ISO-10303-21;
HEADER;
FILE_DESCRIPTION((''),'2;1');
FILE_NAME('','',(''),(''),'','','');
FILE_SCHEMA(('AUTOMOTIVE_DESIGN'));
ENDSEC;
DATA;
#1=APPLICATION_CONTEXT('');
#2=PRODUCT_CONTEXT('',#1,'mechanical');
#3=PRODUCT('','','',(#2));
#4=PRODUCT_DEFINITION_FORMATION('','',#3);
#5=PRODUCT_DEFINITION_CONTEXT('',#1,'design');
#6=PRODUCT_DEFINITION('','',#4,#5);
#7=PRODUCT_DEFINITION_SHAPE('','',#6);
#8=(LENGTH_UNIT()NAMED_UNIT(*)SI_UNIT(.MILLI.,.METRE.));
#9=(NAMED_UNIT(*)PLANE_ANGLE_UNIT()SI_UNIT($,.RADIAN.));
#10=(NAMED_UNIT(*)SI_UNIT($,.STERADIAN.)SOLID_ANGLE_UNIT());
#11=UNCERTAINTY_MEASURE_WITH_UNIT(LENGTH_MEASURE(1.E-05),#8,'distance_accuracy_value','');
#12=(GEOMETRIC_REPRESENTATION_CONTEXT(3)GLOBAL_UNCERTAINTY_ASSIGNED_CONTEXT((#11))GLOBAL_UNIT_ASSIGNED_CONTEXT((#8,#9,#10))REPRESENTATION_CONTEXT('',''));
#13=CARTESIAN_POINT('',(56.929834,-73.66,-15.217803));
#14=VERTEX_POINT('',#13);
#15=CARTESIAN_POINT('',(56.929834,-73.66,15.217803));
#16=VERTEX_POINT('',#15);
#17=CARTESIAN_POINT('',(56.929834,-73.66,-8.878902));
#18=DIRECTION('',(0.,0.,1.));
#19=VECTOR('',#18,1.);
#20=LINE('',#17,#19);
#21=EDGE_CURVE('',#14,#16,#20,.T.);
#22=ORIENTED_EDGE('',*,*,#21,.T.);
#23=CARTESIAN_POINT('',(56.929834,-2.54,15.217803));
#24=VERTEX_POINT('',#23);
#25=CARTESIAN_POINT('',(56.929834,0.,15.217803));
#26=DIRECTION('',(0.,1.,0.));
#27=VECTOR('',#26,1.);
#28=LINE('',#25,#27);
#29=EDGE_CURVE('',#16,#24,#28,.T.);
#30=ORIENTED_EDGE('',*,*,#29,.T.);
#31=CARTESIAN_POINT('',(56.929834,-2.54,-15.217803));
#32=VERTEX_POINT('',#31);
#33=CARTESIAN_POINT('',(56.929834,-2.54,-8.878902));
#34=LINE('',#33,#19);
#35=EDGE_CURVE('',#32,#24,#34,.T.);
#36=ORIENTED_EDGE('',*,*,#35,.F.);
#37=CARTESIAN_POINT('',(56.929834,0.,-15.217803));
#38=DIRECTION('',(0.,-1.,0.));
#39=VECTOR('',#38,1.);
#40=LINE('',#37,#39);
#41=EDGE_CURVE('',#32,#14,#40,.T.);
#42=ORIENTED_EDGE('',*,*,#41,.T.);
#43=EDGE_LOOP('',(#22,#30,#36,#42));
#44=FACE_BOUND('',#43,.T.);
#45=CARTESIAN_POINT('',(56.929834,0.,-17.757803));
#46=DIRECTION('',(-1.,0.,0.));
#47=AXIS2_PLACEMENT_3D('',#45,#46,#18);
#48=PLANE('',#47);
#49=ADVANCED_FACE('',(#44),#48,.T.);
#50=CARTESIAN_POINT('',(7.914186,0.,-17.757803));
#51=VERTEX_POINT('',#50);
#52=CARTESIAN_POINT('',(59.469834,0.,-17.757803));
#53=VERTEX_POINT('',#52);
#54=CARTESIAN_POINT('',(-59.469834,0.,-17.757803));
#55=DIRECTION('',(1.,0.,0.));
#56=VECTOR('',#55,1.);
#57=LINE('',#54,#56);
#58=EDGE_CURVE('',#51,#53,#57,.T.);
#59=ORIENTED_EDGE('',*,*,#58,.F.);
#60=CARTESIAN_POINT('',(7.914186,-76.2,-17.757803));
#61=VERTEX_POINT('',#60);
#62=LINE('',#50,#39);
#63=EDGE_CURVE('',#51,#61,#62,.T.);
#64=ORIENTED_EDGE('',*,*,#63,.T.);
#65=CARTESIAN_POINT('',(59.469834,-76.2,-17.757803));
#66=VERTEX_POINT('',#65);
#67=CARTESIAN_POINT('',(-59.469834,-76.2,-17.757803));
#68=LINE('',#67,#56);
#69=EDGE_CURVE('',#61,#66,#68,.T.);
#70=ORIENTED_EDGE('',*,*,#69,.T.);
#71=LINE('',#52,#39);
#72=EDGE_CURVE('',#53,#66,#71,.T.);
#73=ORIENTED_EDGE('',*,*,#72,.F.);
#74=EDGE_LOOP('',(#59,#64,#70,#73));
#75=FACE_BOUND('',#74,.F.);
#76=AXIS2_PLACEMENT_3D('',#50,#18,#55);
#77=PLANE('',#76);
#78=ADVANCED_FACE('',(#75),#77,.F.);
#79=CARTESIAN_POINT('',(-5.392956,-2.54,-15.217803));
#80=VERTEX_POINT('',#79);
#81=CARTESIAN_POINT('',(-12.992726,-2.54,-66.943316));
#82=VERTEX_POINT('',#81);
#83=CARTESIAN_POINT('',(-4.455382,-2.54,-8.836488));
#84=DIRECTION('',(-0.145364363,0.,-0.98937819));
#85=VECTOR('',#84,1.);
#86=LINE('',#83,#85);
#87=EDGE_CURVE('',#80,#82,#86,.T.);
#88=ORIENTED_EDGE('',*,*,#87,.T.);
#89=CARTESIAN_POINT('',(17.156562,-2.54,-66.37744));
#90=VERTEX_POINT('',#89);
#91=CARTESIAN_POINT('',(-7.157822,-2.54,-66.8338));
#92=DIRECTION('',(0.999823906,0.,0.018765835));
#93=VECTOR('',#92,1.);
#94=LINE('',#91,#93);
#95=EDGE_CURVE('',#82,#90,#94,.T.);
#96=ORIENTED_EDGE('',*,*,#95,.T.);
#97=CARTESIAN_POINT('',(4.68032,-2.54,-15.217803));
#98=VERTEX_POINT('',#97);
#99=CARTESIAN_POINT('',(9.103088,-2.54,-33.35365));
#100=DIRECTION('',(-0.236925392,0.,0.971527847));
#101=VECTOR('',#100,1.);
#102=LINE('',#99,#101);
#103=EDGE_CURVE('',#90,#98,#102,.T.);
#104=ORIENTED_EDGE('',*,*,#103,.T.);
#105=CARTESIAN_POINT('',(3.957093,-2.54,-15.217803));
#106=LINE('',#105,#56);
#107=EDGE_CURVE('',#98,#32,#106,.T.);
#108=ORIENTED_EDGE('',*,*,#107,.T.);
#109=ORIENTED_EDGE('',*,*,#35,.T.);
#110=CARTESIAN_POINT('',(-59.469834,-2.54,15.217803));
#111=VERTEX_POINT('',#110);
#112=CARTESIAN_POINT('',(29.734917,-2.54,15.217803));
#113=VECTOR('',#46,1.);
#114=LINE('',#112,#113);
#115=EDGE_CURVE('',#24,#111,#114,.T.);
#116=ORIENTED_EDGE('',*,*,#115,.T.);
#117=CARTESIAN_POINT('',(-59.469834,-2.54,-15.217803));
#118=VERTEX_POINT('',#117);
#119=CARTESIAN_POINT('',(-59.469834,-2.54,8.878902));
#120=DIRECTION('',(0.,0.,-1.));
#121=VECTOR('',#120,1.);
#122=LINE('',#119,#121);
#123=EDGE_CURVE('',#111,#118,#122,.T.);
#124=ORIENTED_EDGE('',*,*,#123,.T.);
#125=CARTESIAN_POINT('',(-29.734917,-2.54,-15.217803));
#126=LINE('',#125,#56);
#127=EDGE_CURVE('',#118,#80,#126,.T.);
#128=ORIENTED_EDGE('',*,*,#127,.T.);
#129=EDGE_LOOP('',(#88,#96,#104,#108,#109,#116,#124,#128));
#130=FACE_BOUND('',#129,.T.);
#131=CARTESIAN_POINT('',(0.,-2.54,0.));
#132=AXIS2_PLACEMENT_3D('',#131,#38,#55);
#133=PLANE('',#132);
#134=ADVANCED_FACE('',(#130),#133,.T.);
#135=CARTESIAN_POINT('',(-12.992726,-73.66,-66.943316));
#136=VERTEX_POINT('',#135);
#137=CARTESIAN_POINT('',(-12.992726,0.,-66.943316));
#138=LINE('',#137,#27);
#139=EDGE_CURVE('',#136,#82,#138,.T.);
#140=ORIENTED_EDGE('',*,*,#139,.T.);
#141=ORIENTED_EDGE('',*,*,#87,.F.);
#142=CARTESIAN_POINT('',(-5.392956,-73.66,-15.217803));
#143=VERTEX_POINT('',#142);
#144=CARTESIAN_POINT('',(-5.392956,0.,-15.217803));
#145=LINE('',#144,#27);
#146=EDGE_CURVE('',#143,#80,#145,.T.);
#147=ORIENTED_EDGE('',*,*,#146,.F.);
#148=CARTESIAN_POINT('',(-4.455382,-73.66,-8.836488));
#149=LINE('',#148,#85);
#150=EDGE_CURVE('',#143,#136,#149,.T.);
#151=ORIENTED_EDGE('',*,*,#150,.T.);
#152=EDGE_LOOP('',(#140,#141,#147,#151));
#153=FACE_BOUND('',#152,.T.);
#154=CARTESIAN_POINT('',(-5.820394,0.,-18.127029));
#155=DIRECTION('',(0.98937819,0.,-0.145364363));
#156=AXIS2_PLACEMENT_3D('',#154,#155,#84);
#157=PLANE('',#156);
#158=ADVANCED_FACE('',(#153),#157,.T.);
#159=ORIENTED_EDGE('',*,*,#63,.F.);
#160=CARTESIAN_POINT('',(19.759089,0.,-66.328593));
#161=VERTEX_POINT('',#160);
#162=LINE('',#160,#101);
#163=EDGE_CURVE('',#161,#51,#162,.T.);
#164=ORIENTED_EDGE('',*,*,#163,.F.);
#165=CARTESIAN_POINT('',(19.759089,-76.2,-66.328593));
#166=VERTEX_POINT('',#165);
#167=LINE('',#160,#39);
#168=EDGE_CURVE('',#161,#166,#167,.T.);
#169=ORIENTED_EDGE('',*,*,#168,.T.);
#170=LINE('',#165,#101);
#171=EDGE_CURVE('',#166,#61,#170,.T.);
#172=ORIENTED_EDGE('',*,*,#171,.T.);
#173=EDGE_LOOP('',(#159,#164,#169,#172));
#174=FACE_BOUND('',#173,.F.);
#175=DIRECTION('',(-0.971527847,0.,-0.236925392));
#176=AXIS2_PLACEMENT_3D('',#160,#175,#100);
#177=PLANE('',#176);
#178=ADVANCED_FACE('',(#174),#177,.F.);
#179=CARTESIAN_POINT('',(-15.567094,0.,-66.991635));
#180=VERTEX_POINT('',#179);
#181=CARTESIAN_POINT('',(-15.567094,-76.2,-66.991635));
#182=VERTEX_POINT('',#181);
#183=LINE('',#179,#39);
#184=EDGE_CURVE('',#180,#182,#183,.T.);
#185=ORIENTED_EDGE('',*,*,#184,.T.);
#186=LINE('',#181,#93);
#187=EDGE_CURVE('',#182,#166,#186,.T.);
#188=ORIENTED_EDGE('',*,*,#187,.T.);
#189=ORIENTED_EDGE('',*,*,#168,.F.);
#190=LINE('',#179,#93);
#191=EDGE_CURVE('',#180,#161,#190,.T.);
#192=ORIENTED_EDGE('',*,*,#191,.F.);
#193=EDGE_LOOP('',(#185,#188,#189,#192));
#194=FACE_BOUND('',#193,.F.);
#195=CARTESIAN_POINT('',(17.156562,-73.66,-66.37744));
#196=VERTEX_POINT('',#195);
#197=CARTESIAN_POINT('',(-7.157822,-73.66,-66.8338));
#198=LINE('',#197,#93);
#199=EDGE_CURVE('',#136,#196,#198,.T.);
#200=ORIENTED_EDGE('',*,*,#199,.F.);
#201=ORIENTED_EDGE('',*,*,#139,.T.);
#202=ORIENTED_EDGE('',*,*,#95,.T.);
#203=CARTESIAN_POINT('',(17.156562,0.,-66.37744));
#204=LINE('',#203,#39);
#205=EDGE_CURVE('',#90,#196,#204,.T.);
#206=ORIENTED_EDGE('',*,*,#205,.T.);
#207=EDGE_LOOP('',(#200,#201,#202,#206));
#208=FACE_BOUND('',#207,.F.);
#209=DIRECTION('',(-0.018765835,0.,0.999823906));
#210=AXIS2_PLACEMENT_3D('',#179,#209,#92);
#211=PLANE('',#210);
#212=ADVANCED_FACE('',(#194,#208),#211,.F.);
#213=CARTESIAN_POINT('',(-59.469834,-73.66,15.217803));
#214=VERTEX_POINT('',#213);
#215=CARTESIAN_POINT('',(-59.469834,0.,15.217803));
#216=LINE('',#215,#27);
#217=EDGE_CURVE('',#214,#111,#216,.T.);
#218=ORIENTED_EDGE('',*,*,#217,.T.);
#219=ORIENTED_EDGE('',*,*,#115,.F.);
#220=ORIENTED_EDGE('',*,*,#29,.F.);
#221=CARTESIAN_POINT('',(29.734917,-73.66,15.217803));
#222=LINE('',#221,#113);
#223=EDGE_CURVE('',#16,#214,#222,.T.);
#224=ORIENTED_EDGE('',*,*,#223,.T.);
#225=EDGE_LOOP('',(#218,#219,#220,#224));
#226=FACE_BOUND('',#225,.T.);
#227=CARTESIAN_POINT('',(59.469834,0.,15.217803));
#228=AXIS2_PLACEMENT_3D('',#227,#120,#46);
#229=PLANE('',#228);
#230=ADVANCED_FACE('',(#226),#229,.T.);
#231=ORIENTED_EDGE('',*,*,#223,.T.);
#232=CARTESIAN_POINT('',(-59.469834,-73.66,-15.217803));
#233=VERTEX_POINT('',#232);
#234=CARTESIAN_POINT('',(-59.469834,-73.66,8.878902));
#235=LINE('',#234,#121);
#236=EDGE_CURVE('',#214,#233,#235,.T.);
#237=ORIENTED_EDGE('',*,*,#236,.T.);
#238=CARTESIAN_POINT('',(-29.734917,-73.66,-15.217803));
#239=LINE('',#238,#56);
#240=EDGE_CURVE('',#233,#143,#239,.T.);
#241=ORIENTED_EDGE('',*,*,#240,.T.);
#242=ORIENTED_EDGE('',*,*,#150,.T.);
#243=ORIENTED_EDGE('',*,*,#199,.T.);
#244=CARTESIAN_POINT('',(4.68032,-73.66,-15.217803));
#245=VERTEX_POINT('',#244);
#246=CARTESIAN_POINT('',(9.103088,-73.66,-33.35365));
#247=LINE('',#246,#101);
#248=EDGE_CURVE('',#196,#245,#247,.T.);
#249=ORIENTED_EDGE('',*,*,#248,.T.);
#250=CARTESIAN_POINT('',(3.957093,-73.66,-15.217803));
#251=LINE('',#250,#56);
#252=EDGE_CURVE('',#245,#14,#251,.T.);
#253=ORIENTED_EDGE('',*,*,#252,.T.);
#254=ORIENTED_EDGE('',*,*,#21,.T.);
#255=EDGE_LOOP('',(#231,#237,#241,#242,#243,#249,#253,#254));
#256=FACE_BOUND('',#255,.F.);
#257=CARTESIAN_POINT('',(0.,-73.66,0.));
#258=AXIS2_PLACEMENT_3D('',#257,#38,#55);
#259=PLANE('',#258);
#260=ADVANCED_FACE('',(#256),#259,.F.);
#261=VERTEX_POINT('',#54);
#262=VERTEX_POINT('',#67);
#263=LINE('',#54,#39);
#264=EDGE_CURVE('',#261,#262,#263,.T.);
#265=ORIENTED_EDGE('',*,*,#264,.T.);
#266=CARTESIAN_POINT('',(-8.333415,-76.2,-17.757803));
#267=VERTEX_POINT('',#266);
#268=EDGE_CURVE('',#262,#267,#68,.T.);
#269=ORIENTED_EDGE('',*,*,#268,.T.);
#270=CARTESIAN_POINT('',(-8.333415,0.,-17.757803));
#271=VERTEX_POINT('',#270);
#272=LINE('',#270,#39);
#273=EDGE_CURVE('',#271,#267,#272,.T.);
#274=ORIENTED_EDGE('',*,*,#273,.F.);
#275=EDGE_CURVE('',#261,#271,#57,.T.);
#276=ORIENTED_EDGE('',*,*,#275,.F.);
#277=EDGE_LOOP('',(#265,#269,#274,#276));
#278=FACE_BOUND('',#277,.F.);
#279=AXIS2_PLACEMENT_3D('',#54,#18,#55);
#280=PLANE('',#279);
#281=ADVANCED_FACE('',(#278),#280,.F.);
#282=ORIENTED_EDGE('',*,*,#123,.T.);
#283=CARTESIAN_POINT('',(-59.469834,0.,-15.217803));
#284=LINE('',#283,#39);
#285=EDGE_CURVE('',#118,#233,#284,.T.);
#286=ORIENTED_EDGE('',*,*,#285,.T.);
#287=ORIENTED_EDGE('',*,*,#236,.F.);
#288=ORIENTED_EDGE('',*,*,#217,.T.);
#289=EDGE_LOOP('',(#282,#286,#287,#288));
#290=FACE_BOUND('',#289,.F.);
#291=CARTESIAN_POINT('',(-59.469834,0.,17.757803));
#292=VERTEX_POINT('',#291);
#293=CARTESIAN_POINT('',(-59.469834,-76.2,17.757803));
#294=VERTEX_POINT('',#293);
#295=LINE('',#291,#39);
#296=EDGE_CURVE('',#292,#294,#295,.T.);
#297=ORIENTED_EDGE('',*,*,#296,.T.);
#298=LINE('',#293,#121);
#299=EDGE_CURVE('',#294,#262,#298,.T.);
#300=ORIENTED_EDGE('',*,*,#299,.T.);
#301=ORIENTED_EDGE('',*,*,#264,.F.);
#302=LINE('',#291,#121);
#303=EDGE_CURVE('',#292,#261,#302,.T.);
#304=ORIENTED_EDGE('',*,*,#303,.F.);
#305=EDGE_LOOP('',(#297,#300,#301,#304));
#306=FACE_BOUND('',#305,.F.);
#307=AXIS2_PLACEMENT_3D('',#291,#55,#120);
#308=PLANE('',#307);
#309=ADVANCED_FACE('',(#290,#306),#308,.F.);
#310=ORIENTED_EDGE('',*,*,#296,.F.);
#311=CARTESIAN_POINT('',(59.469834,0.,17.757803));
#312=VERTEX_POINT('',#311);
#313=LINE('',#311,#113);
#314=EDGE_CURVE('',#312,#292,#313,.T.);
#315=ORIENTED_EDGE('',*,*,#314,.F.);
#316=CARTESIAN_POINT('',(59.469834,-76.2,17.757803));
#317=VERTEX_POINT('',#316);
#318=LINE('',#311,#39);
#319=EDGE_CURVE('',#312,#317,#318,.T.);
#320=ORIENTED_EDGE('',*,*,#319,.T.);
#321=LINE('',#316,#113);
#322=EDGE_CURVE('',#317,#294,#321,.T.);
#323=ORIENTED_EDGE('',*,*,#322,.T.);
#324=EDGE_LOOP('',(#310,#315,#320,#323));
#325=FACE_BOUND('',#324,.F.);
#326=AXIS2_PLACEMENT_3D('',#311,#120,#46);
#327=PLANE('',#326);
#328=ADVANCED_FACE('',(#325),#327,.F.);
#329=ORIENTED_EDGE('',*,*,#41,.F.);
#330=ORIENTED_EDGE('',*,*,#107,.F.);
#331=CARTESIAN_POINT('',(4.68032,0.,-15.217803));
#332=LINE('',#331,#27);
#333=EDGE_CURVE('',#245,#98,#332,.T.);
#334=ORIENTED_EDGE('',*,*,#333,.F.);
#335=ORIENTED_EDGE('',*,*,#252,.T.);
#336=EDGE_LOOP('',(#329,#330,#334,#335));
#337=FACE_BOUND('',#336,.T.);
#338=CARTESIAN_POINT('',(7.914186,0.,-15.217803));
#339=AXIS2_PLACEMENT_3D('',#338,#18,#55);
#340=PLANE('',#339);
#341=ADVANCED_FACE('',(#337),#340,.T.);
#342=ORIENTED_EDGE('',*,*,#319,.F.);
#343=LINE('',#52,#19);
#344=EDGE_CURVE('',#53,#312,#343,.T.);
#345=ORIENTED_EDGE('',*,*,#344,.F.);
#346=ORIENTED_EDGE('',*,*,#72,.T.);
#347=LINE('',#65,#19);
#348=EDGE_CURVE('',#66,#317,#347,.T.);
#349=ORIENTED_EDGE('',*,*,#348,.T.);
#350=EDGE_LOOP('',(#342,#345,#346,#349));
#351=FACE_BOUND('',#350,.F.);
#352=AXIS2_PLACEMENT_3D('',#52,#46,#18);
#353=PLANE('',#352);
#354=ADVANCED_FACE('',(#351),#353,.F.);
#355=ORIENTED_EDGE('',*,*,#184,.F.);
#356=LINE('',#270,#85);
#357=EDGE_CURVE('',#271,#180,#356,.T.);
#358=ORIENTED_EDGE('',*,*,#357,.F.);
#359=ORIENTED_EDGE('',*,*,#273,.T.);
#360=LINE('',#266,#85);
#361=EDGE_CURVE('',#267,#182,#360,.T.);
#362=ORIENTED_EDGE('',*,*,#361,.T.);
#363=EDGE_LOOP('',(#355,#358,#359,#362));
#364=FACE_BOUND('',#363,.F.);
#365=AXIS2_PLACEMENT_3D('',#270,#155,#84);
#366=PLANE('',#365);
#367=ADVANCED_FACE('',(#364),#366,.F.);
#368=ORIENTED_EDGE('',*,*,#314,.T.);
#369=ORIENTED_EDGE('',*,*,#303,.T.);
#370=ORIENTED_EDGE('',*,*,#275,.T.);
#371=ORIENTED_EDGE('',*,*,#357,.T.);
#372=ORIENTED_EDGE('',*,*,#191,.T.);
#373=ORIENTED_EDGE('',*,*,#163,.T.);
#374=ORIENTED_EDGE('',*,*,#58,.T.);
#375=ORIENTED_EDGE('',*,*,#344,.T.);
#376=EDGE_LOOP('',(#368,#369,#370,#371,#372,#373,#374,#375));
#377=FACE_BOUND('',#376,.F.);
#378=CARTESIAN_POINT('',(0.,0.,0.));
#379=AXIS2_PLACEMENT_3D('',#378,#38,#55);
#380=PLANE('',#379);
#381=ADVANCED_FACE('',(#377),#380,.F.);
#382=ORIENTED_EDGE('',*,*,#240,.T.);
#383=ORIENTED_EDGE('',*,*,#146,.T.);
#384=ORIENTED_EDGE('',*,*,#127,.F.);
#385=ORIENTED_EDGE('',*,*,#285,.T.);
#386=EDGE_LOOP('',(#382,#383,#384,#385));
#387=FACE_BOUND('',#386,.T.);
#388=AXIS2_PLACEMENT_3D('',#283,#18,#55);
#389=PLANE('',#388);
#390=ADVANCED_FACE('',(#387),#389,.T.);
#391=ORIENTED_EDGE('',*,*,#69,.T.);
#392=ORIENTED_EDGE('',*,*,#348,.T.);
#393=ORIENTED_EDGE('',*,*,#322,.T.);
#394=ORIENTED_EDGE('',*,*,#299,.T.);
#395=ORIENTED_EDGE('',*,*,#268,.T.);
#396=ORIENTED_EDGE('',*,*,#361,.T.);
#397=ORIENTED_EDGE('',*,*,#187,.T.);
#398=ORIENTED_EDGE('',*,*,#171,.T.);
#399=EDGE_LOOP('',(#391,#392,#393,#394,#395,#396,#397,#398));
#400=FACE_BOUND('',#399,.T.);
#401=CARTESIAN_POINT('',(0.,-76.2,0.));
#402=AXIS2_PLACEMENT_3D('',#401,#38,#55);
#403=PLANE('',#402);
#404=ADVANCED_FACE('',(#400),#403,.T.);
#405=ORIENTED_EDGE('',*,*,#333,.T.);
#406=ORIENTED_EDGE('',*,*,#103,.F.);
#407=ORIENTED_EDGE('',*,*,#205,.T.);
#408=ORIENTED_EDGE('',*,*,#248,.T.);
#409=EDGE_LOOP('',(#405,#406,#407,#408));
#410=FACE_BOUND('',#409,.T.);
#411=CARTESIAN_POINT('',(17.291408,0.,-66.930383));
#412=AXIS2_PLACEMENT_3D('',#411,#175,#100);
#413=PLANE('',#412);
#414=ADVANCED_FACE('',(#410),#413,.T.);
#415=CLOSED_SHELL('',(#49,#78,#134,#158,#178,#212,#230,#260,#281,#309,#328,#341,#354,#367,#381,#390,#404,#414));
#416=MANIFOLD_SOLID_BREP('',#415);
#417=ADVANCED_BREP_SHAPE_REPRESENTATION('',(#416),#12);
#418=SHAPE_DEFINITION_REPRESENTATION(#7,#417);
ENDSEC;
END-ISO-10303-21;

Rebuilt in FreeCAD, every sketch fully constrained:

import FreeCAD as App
import Part
import Sketcher
from FreeCAD import Vector
Q = App.Units.Quantity


def faces_at(feature, points):
    """Names of the faces that lie closest to the given points."""
    faces = feature.Shape.Faces
    near = lambda p: min(range(len(faces)), key=lambda i: faces[i].distToShape(Part.Vertex(*p))[0])
    return sorted({f"Face{near(p) + 1}" for p in points})


def add_polygon(sketch, points):
    """Adds a closed chain of lines whose ends are joined by coincident constraints."""
    first, n = sketch.GeometryCount, len(points)
    for a, b in zip(points, points[1:] + points[:1]):
        sketch.addGeometry(Part.LineSegment(App.Vector(*a, 0), App.Vector(*b, 0)), False)
    for i in range(n):
        sketch.addConstraint(Sketcher.Constraint("Coincident", first + i, 2, first + (i + 1) % n, 1))

doc = App.newDocument("Part")
body = doc.addObject("PartDesign::Body", "Body")

sketch1 = doc.addObject("Sketcher::SketchObject", "Sketch")
body.addObject(sketch1)
sketch1.AttachmentSupport = (doc.XZ_Plane, [""])
sketch1.MapMode = "FlatFace"
add_polygon(sketch1, [(59, 18), (-59, 18), (-59, -18), (-8, -18), (-16, -67), (20, -66), (8, -18), (59, -18)])
sketch1.addConstraint(Sketcher.Constraint("Horizontal", 0))
sketch1.addConstraint(Sketcher.Constraint("Vertical", 1))
sketch1.addConstraint(Sketcher.Constraint("Horizontal", 2))
sketch1.addConstraint(Sketcher.Constraint("Horizontal", 6))
sketch1.addConstraint(Sketcher.Constraint("Vertical", 7))
sketch1.addConstraint(Sketcher.Constraint("Symmetric", 0, 2, 6, 2, -1, 1))
sketch1.addConstraint(Sketcher.Constraint("Horizontal", 2, 2, 5, 2))
sketch1.addConstraint(Sketcher.Constraint("Distance", 3, 49.762398))
sketch1.addConstraint(Sketcher.Constraint("DistanceX", 2, 1, 2, 2, 51.136419))
sketch1.addConstraint(Sketcher.Constraint("DistanceX", 6, 1, 6, 2, 51.555648))
sketch1.addConstraint(Sketcher.Constraint("DistanceX", 2, 2, 5, 2, 16.2476))
sketch1.addConstraint(Sketcher.Constraint("DistanceY", 1, 2, 1, 1, 35.515606))
sketch1.addConstraint(Sketcher.Constraint("DistanceX", -1, 1, 4, 2, 19.759089))
sketch1.addConstraint(Sketcher.Constraint("DistanceX", 3, 2, 2, 2, 7.233679))
sketch1.addConstraint(Sketcher.Constraint("DistanceY", 4, 2, 2, 2, 48.570789))
pad1 = doc.addObject("PartDesign::Pad", "Pad")
body.addObject(pad1)
pad1.Profile = sketch1
pad1.Length = Q("3 in")
doc.recompute()

thickness = doc.addObject("PartDesign::Thickness", "Thickness")
body.addObject(thickness)
thickness.Base = (pad1, faces_at(pad1, [(2.096, -38.1, -66.66), (-59.47, -38.1, 0)]))
thickness.Value = Q("0.1 in")
thickness.Reversed = True
thickness.Join = "Intersection"

doc.recompute()
